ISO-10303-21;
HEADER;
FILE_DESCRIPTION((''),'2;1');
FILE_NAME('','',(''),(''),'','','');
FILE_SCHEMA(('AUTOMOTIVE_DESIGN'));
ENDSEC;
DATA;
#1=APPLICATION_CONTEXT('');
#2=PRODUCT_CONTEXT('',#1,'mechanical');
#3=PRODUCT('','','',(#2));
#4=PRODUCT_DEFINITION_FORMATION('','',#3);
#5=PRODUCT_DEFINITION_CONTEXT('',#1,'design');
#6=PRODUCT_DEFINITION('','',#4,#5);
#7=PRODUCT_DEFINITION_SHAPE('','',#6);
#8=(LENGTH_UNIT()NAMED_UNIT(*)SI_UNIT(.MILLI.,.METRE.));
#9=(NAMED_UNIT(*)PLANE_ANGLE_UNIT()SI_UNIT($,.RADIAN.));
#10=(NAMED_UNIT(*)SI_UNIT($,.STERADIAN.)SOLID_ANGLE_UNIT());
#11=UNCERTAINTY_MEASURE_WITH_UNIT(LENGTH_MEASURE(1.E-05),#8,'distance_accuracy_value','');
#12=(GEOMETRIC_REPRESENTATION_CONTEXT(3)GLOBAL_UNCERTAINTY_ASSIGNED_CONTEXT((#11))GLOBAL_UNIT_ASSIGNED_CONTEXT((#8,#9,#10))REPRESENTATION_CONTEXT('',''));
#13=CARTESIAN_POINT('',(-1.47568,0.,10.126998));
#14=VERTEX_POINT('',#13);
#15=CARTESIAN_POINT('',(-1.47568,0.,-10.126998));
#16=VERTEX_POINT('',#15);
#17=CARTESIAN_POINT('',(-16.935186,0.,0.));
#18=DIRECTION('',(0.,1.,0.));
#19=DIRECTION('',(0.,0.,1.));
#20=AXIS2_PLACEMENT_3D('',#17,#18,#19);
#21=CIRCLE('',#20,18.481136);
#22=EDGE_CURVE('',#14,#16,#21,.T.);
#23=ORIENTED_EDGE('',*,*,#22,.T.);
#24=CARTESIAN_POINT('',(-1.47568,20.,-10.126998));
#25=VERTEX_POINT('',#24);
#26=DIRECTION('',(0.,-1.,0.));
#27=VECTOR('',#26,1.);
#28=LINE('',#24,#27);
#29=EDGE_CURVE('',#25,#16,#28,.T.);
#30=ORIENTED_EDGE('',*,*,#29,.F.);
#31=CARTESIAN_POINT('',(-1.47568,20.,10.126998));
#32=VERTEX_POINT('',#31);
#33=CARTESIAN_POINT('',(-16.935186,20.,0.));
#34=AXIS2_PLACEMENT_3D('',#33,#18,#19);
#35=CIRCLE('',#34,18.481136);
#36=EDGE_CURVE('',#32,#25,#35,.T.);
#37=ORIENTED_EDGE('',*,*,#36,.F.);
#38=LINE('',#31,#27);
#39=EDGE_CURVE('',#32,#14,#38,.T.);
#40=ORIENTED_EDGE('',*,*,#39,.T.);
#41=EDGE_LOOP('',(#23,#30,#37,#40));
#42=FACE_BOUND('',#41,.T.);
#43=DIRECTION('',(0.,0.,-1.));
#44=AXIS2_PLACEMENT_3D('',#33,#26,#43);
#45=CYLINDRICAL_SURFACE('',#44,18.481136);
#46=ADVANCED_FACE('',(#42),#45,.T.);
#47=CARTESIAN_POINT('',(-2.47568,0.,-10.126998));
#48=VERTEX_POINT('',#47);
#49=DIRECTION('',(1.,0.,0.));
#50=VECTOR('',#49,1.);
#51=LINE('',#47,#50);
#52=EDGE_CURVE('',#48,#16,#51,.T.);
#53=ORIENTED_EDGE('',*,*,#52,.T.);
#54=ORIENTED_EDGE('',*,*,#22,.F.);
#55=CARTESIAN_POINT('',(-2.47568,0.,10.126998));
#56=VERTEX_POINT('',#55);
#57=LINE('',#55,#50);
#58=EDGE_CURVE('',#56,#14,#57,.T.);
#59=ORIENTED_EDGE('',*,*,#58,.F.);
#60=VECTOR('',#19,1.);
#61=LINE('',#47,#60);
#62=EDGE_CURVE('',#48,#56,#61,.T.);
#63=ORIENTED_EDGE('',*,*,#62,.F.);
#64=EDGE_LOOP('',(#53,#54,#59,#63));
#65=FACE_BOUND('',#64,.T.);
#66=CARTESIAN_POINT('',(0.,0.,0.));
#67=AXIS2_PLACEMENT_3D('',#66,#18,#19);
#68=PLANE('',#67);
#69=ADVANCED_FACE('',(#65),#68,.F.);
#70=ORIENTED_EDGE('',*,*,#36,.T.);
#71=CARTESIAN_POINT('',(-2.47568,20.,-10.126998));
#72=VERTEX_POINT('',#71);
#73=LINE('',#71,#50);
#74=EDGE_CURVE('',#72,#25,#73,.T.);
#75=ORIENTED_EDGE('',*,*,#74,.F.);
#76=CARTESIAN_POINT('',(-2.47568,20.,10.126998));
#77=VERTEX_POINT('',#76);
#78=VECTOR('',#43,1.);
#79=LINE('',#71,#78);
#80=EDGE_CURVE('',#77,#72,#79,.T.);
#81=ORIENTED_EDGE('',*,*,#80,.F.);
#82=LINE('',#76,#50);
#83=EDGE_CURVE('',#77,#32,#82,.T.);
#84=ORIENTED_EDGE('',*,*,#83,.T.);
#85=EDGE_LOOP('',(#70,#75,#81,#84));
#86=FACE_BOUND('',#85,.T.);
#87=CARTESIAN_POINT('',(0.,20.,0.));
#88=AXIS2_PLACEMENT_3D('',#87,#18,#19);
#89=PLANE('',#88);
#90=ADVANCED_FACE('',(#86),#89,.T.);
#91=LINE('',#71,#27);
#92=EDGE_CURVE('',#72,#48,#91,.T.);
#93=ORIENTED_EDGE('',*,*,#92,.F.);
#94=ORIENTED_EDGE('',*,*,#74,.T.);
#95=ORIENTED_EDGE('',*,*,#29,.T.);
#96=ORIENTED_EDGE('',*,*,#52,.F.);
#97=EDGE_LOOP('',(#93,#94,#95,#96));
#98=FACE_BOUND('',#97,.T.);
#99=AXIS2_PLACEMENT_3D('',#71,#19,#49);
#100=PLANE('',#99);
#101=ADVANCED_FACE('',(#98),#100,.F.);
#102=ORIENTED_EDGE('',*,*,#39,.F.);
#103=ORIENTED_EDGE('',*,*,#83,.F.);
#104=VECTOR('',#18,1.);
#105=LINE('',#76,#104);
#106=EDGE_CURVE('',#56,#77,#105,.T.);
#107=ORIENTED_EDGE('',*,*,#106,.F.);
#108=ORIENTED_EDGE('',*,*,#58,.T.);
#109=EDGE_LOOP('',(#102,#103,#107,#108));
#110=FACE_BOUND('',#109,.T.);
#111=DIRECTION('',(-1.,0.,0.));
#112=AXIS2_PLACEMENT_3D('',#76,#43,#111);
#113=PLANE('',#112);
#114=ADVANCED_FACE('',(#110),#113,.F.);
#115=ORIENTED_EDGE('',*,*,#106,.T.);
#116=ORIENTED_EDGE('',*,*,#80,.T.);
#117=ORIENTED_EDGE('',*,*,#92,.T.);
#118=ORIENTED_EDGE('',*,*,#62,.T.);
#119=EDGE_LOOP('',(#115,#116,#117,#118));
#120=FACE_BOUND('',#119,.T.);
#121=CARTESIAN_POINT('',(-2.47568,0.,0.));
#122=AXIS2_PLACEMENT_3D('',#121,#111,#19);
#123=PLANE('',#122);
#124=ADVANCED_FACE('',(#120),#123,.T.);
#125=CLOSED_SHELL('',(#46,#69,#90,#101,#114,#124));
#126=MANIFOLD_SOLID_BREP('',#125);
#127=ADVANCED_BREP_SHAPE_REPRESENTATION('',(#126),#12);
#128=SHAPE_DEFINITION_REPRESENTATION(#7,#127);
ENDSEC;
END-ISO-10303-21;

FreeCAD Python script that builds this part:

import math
import FreeCAD as App
import Part
import Sketcher

V = App.Vector

doc = App.newDocument("Part")
params = doc.addObject("Spreadsheet::Sheet", "Params")
for row, (alias, value) in enumerate([
    ("pad1_length", "20 mm"),
    ("sketch2_width", "20 mm"),
    ("pad2_length", "1 mm"),
], start=1):
    params.set(f"A{row}", alias)
    params.set(f"B{row}", "=" + value)
    params.setAlias(f"B{row}", alias)

body = doc.addObject("PartDesign::Body", "Body")

# Sketch on XZ plane
sketch1 = doc.addObject("Sketcher::SketchObject", "Sketch")
body.addObject(sketch1)
sketch1.AttachmentSupport = (doc.XZ_Plane, [""])
sketch1.MapMode = "FlatFace"
sketch1.addGeometry([
    Part.ArcOfCircle(Part.Circle(V(-17, 0, 0), V(0, 0, 1), 18), math.radians(-33), math.radians(0)),
    Part.LineSegment(V(-1, -10, 0), V(-1, 10, 0)),
    Part.ArcOfCircle(Part.Circle(V(-17, 0, 0), V(0, 0, 1), 18), math.radians(0), math.radians(33)),
], False)
sketch1.addConstraint([
    Sketcher.Constraint("Coincident", 0, 1, 1, 1),
    Sketcher.Constraint("Coincident", 1, 2, 2, 2),
    Sketcher.Constraint("Tangent", 2, 1, 0, 2),
    Sketcher.Constraint("Vertical", 1),
    Sketcher.Constraint("Equal", 0, 2),
    Sketcher.Constraint("PointOnObject", 0, 3, -1),
    Sketcher.Constraint("PointOnObject", 2, 1, -1),
    Sketcher.Constraint("Radius", 0, 18.481136),
    Sketcher.Constraint("DistanceY", 1, 1, 1, 2, 20.253995),
    Sketcher.Constraint("DistanceX", 0, 1, -1, 1, 1.47568),
])
pad1 = doc.addObject("PartDesign::Pad", "Pad")
body.addObject(pad1)
pad1.Profile = sketch1
pad1.setExpression("Length", "Params.pad1_length")
pad1.Reversed = True

# Sketch on YZ plane
sketch2 = doc.addObject("Sketcher::SketchObject", "Sketch001")
body.addObject(sketch2)
sketch2.AttachmentSupport = (doc.YZ_Plane, [""])
sketch2.MapMode = "FlatFace"
sketch2.AttachmentOffset = App.Placement(V(0, 0, -1.47568), App.Rotation())
sketch2.addGeometry([
    Part.LineSegment(V(20, -10, 0), V(0, -10, 0)),
    Part.LineSegment(V(0, -10, 0), V(0, 10, 0)),
    Part.LineSegment(V(0, 10, 0), V(20, 10, 0)),
    Part.LineSegment(V(20, 10, 0), V(20, -10, 0)),
], False)
sketch2.addConstraint([
    Sketcher.Constraint("Coincident", 0, 2, 1, 1),
    Sketcher.Constraint("Coincident", 1, 2, 2, 1),
    Sketcher.Constraint("Coincident", 2, 2, 3, 1),
    Sketcher.Constraint("Coincident", 3, 2, 0, 1),
    Sketcher.Constraint("Horizontal", 0),
    Sketcher.Constraint("Vertical", 1),
    Sketcher.Constraint("Horizontal", 2),
    Sketcher.Constraint("Vertical", 3),
    Sketcher.Constraint("Symmetric", 0, 2, 1, 2, -1, 1),
    Sketcher.Constraint("DistanceX", 0, 2, 0, 1, 20.0),
    Sketcher.Constraint("DistanceY", 1, 1, 1, 2, 20.253995),
])
sketch2.setExpression("Constraints[9]", "Params.sketch2_width")
pad2 = doc.addObject("PartDesign::Pad", "Pad001")
body.addObject(pad2)
pad2.Profile = sketch2
pad2.setExpression("Length", "Params.pad2_length")
pad2.Reversed = True

doc.recompute()
